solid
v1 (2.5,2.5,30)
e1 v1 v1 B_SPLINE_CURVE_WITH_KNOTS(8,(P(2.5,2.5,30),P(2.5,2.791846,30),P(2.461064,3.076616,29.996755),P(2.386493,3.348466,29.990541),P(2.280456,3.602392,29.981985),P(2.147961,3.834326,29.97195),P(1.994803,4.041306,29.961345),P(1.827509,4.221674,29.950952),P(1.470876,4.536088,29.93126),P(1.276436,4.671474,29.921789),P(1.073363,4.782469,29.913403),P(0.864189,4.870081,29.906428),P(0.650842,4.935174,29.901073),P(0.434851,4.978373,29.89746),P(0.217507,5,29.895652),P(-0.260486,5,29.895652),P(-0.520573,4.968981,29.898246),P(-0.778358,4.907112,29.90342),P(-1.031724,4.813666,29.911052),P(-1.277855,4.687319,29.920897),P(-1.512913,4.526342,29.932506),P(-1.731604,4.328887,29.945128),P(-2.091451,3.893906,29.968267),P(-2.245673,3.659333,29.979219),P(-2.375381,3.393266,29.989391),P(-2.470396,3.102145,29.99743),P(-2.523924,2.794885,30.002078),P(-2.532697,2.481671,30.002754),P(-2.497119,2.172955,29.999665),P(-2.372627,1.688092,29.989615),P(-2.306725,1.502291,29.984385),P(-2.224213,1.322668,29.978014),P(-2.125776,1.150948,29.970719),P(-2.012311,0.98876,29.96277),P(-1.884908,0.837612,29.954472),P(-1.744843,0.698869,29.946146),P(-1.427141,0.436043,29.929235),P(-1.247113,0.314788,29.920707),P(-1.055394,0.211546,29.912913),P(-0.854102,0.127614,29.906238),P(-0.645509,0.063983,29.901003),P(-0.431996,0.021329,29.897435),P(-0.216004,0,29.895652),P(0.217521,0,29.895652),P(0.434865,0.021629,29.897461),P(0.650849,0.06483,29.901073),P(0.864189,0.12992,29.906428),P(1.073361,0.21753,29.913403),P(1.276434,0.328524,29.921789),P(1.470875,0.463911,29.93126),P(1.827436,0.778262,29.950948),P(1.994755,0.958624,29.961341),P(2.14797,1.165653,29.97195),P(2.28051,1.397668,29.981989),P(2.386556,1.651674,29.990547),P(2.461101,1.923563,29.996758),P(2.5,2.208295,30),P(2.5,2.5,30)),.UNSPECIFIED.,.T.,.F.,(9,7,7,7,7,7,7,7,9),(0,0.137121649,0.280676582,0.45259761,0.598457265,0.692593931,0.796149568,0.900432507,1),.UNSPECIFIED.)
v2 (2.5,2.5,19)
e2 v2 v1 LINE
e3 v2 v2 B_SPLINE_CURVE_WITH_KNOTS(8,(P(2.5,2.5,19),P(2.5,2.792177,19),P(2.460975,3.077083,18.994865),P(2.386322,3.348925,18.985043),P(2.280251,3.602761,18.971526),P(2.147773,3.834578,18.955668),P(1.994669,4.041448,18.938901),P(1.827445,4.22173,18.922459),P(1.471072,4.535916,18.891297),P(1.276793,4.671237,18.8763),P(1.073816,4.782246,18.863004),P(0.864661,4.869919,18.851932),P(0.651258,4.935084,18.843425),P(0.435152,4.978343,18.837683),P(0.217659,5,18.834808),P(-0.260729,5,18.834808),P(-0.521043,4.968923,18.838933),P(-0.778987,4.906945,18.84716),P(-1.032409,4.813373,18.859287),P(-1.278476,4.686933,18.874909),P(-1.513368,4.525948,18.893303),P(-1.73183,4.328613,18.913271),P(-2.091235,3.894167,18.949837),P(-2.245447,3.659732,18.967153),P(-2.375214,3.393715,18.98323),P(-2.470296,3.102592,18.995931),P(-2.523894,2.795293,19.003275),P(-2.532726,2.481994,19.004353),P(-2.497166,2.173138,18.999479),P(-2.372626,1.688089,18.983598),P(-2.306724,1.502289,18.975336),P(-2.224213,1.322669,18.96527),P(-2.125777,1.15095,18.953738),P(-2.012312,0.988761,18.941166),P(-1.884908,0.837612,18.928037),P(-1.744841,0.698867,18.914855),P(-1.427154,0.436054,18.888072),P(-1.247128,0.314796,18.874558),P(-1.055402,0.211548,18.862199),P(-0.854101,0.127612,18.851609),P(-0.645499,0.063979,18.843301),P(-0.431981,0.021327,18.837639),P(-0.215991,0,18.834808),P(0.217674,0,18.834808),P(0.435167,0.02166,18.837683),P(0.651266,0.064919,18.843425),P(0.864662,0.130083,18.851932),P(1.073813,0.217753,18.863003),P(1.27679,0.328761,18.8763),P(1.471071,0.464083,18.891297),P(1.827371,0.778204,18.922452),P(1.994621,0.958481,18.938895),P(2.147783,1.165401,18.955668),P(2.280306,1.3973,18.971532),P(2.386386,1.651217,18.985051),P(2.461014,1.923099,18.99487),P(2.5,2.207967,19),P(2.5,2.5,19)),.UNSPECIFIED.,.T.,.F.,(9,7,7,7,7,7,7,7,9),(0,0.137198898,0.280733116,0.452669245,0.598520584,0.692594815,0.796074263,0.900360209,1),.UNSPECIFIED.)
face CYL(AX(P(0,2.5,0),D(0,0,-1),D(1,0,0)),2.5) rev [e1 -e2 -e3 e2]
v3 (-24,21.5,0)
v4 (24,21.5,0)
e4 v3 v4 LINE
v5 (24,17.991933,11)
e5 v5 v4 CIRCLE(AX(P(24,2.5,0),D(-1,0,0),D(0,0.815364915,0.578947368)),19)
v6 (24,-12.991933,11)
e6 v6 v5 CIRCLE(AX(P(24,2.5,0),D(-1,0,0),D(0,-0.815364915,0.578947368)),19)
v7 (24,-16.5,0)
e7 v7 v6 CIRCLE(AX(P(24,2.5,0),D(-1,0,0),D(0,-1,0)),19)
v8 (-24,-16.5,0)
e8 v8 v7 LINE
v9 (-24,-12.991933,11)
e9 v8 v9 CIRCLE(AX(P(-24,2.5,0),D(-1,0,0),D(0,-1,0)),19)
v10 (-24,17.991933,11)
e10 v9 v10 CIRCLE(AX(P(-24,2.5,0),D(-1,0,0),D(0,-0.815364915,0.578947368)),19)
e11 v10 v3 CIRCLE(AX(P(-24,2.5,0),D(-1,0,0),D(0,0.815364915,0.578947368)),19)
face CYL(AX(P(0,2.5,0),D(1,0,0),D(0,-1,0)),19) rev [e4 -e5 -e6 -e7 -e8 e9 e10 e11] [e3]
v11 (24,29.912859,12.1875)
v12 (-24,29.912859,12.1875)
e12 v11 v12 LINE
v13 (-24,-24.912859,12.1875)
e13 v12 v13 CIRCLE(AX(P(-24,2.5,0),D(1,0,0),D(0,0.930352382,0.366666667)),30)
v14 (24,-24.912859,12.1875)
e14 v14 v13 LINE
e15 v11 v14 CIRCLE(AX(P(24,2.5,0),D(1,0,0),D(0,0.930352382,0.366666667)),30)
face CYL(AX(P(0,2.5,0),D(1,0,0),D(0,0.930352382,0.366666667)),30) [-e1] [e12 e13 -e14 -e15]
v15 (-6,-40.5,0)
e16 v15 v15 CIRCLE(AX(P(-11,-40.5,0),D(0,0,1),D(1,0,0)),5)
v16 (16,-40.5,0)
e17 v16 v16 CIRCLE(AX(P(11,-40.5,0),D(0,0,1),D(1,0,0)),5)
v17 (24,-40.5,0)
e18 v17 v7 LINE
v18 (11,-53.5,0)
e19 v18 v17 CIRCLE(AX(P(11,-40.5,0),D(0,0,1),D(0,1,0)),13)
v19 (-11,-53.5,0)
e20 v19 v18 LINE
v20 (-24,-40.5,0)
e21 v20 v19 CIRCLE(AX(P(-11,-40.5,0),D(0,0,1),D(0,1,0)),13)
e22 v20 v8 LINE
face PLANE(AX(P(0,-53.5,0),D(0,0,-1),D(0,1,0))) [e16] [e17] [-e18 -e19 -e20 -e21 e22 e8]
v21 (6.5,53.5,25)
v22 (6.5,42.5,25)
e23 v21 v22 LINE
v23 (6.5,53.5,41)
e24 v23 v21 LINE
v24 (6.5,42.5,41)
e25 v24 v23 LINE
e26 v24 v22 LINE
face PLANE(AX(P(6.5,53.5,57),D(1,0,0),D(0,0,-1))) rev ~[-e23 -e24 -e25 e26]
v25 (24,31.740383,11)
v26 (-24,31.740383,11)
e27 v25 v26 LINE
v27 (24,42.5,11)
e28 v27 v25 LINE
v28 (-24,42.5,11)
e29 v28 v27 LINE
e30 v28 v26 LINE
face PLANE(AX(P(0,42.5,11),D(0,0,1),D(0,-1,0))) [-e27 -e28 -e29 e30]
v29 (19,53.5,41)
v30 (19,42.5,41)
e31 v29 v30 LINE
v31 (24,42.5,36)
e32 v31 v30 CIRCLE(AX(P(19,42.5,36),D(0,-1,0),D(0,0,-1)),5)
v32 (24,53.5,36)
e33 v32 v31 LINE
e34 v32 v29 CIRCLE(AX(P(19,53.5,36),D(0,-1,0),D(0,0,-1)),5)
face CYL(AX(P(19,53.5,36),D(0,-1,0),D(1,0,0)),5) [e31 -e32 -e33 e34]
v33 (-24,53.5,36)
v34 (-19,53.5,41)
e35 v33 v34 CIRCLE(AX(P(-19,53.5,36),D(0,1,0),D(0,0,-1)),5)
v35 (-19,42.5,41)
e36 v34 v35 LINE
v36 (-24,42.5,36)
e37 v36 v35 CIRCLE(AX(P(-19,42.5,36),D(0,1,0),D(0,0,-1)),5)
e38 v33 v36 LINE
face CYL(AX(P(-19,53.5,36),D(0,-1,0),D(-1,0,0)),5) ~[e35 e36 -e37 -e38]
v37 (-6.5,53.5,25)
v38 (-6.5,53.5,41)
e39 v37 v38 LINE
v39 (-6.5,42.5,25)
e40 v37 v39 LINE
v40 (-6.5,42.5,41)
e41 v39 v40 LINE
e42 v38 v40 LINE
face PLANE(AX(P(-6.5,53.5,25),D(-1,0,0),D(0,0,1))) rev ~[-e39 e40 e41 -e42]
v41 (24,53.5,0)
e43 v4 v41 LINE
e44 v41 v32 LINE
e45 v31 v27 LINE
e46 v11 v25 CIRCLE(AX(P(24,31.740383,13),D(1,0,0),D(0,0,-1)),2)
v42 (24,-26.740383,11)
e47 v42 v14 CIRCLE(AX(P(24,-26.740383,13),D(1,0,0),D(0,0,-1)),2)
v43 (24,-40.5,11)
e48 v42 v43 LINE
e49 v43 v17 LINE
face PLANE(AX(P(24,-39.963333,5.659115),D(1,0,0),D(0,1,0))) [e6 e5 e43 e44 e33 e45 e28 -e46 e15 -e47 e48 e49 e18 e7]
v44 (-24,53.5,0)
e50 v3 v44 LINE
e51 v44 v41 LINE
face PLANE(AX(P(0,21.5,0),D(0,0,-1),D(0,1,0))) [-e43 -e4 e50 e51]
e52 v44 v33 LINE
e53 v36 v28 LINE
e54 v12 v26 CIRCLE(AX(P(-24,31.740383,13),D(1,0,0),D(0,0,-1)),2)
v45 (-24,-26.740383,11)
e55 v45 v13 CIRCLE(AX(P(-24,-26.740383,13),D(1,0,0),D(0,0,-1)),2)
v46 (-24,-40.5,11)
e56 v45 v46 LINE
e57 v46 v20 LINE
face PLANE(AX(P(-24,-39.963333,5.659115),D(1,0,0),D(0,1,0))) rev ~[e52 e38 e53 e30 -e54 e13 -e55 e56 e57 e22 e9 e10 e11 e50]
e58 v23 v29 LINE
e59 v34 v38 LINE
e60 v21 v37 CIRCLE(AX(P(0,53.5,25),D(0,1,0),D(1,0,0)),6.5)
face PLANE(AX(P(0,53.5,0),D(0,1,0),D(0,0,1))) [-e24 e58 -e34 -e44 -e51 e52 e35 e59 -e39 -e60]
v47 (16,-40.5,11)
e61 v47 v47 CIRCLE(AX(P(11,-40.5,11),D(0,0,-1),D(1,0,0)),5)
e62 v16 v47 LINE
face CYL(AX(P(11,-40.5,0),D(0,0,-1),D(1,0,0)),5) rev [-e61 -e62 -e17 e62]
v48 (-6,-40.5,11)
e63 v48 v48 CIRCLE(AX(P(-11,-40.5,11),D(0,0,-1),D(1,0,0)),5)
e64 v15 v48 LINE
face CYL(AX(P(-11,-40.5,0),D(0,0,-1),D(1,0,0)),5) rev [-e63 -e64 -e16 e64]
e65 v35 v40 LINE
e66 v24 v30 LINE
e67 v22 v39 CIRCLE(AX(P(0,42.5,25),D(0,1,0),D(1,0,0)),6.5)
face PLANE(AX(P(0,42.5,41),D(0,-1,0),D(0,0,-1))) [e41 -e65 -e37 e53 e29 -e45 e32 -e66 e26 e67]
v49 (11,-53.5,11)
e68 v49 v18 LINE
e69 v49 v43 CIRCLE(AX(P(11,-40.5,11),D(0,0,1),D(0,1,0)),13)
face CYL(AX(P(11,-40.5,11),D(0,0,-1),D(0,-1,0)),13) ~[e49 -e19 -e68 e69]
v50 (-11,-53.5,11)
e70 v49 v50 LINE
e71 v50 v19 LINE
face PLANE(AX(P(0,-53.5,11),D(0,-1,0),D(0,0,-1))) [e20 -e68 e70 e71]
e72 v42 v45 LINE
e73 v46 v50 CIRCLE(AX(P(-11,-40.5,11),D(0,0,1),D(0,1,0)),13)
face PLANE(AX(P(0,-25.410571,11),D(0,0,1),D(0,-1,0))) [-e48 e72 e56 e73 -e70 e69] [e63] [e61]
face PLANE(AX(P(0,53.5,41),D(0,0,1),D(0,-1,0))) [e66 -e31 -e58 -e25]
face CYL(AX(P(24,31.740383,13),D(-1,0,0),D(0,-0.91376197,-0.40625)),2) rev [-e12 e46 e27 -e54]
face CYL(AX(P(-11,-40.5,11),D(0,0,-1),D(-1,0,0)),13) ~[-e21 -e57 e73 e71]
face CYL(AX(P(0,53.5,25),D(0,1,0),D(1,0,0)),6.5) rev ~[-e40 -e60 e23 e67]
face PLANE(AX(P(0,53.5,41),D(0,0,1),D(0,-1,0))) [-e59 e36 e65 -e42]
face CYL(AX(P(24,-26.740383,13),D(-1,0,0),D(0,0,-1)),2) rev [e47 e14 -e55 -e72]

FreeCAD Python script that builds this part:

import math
import FreeCAD as App
import Part
import Sketcher
Q = App.Units.Quantity


def edges_at(feature, points):
    """Names of the edges that pass closest to the given points."""
    edges = feature.Shape.Edges
    near = lambda p: min(range(len(edges)), key=lambda i: edges[i].distToShape(Part.Vertex(*p))[0])
    return sorted({f"Edge{near(p) + 1}" for p in points})

doc = App.newDocument("Part")
body = doc.addObject("PartDesign::Body", "Body")

sketch1 = doc.addObject("Sketcher::SketchObject", "Sketch")
body.addObject(sketch1)
sketch1.AttachmentSupport = (doc.YZ_Plane, [""])
sketch1.MapMode = "FlatFace"
sketch1.addGeometry(Part.LineSegment(App.Vector(-54, 11, 0), App.Vector(-54, 0, 0)), False)
sketch1.addGeometry(Part.LineSegment(App.Vector(-54, 0, 0), App.Vector(-16, 0, 0)), False)
sketch1.addGeometry(Part.ArcOfCircle(Part.Circle(App.Vector(2, 0, 0), App.Vector(0, 0, 1), 19), math.radians(145), math.radians(180)), False)
sketch1.addGeometry(Part.ArcOfCircle(Part.Circle(App.Vector(2, 0, 0), App.Vector(0, 0, 1), 19), math.radians(35), math.radians(145)), False)
sketch1.addGeometry(Part.ArcOfCircle(Part.Circle(App.Vector(2, 0, 0), App.Vector(0, 0, 1), 19), math.radians(0), math.radians(35)), False)
sketch1.addGeometry(Part.LineSegment(App.Vector(22, 0, 0), App.Vector(54, 0, 0)), False)
sketch1.addGeometry(Part.LineSegment(App.Vector(54, 0, 0), App.Vector(54, 41, 0)), False)
sketch1.addGeometry(Part.LineSegment(App.Vector(54, 41, 0), App.Vector(42, 41, 0)), False)
sketch1.addGeometry(Part.LineSegment(App.Vector(42, 41, 0), App.Vector(42, 11, 0)), False)
sketch1.addGeometry(Part.LineSegment(App.Vector(42, 11, 0), App.Vector(30, 11, 0)), False)
sketch1.addGeometry(Part.ArcOfCircle(Part.Circle(App.Vector(2, 0, 0), App.Vector(0, 0, 1), 30), math.radians(22), math.radians(158)), False)
sketch1.addGeometry(Part.LineSegment(App.Vector(-25, 11, 0), App.Vector(-54, 11, 0)), False)
sketch1.addConstraint(Sketcher.Constraint("Coincident", 0, 2, 1, 1))
sketch1.addConstraint(Sketcher.Constraint("Coincident", 1, 2, 2, 2))
sketch1.addConstraint(Sketcher.Constraint("Tangent", 2, 1, 3, 2))
sketch1.addConstraint(Sketcher.Constraint("Tangent", 3, 1, 4, 2))
sketch1.addConstraint(Sketcher.Constraint("Coincident", 4, 1, 5, 1))
sketch1.addConstraint(Sketcher.Constraint("Coincident", 5, 2, 6, 1))
sketch1.addConstraint(Sketcher.Constraint("Coincident", 6, 2, 7, 1))
sketch1.addConstraint(Sketcher.Constraint("Coincident", 7, 2, 8, 1))
sketch1.addConstraint(Sketcher.Constraint("Coincident", 8, 2, 9, 1))
sketch1.addConstraint(Sketcher.Constraint("Coincident", 9, 2, 10, 1))
sketch1.addConstraint(Sketcher.Constraint("Coincident", 10, 2, 11, 1))
sketch1.addConstraint(Sketcher.Constraint("Coincident", 11, 2, 0, 1))
sketch1.addConstraint(Sketcher.Constraint("Vertical", 0))
sketch1.addConstraint(Sketcher.Constraint("Horizontal", 1))
sketch1.addConstraint(Sketcher.Constraint("Horizontal", 5))
sketch1.addConstraint(Sketcher.Constraint("Vertical", 6))
sketch1.addConstraint(Sketcher.Constraint("Horizontal", 7))
sketch1.addConstraint(Sketcher.Constraint("Vertical", 8))
sketch1.addConstraint(Sketcher.Constraint("Horizontal", 9))
sketch1.addConstraint(Sketcher.Constraint("Horizontal", 11))
sketch1.addConstraint(Sketcher.Constraint("Coincident", 4, 3, 2, 3))
sketch1.addConstraint(Sketcher.Constraint("Coincident", 10, 3, 2, 3))
sketch1.addConstraint(Sketcher.Constraint("Symmetric", 0, 2, 5, 2, -1, 1))
sketch1.addConstraint(Sketcher.Constraint("PointOnObject", 2, 3, -1))
sketch1.addConstraint(Sketcher.Constraint("PointOnObject", 0, 2, -1))
sketch1.addConstraint(Sketcher.Constraint("Horizontal", 2, 1, 3, 1))
sketch1.addConstraint(Sketcher.Constraint("Horizontal", 3, 1, 8, 2))
sketch1.addConstraint(Sketcher.Constraint("Horizontal", 9, 2, 10, 2))
sketch1.addConstraint(Sketcher.Constraint("Equal", 7, 0))
sketch1.addConstraint(Sketcher.Constraint("Radius", 2, Q("19 mm")))
sketch1.addConstraint(Sketcher.Constraint("Radius", 10, Q("30 mm")))
sketch1.addConstraint(Sketcher.Constraint("DistanceX", 1, 1, 1, 2, Q("37 mm")))
sketch1.addConstraint(Sketcher.Constraint("DistanceX", 5, 1, 5, 2, Q("32 mm")))
sketch1.addConstraint(Sketcher.Constraint("DistanceX", 7, 2, 7, 1, Q("11 mm")))
sketch1.addConstraint(Sketcher.Constraint("DistanceY", 6, 1, 6, 2, Q("41 mm")))
pad1 = doc.addObject("PartDesign::Pad", "Pad")
body.addObject(pad1)
pad1.Profile = sketch1
pad1.Length = 48
pad1.Midplane = True

sketch2 = doc.addObject("Sketcher::SketchObject", "Sketch001")
body.addObject(sketch2)
sketch2.AttachmentSupport = (doc.XZ_Plane, [""])
sketch2.MapMode = "FlatFace"
sketch2.AttachmentOffset = App.Placement(App.Vector(0, 0, -53.5), App.Rotation())
sketch2.addGeometry(Part.LineSegment(App.Vector(6, 57, 0), App.Vector(6, 25, 0)), False)
sketch2.addGeometry(Part.ArcOfCircle(Part.Circle(App.Vector(0, 25, 0), App.Vector(0, 0, 1), 6), math.radians(180), math.radians(360)), False)
sketch2.addGeometry(Part.LineSegment(App.Vector(-6, 25, 0), App.Vector(-6, 57, 0)), False)
sketch2.addGeometry(Part.LineSegment(App.Vector(-6, 57, 0), App.Vector(6, 57, 0)), False)
sketch2.addConstraint(Sketcher.Constraint("Tangent", 0, 2, 1, 2))
sketch2.addConstraint(Sketcher.Constraint("Tangent", 1, 1, 2, 1))
sketch2.addConstraint(Sketcher.Constraint("Coincident", 2, 2, 3, 1))
sketch2.addConstraint(Sketcher.Constraint("Coincident", 3, 2, 0, 1))
sketch2.addConstraint(Sketcher.Constraint("Vertical", 0))
sketch2.addConstraint(Sketcher.Constraint("Vertical", 2))
sketch2.addConstraint(Sketcher.Constraint("Horizontal", 3))
sketch2.addConstraint(Sketcher.Constraint("PointOnObject", 1, 3, -2))
sketch2.addConstraint(Sketcher.Constraint("Radius", 1, Q("6.5 mm")))
sketch2.addConstraint(Sketcher.Constraint("DistanceY", 0, 2, 0, 1, Q("32 mm")))
sketch2.addConstraint(Sketcher.Constraint("DistanceY", -1, 1, 1, 3, Q("25 mm")))
pocket1 = doc.addObject("PartDesign::Pocket", "Pocket")
body.addObject(pocket1)
pocket1.Profile = sketch2
pocket1.Length = 11
pocket1.Reversed = True

sketch3 = doc.addObject("Sketcher::SketchObject", "Sketch002")
body.addObject(sketch3)
sketch3.AttachmentSupport = (doc.XY_Plane, [""])
sketch3.MapMode = "FlatFace"
sketch3.addGeometry(Part.Circle(App.Vector(-11, -40.5, 0), App.Vector(0, 0, 1), 5), False)
sketch3.addGeometry(Part.Circle(App.Vector(11, -40.5, 0), App.Vector(0, 0, 1), 5), False)
sketch3.addGeometry(Part.Circle(App.Vector(0, 2.5, 0), App.Vector(0, 0, 1), 2.5), False)
sketch3.addConstraint(Sketcher.Constraint("Equal", 0, 1))
sketch3.addConstraint(Sketcher.Constraint("Symmetric", 0, 3, 1, 3, -2))
sketch3.addConstraint(Sketcher.Constraint("PointOnObject", 2, 3, -2))
sketch3.addConstraint(Sketcher.Constraint("Diameter", 0, Q("10 mm")))
sketch3.addConstraint(Sketcher.Constraint("Diameter", 2, Q("5 mm")))
sketch3.addConstraint(Sketcher.Constraint("DistanceX", 0, 3, -1, 1, Q("11 mm")))
sketch3.addConstraint(Sketcher.Constraint("DistanceY", 0, 3, 2, 3, Q("43 mm")))
sketch3.addConstraint(Sketcher.Constraint("DistanceY", 0, 3, -1, 1, Q("40.5 mm")))
pocket2 = doc.addObject("PartDesign::Pocket", "Pocket001")
body.addObject(pocket2)
pocket2.Profile = sketch3
pocket2.Type = "ThroughAll"
pocket2.Reversed = True
doc.recompute()

fillet = doc.addObject("PartDesign::Fillet", "Fillet")
body.addObject(fillet)
fillet.Base = (pocket2, edges_at(pocket2, [(-24, 48, 41), (24, 48, 41)]))
fillet.Radius = 5
doc.recompute()

fillet2 = doc.addObject("PartDesign::Fillet", "Fillet001")
body.addObject(fillet2)
fillet2.Base = (fillet, edges_at(fillet, [(-24, -53.5, 5.5), (24, -53.5, 5.5)]))
fillet2.Radius = 13
doc.recompute()

fillet3 = doc.addObject("PartDesign::Fillet", "Fillet002")
body.addObject(fillet3)
fillet3.Base = (fillet2, edges_at(fillet2, [(0, -25.411, 11), (0, 30.411, 11)]))
fillet3.Radius = 2

doc.recompute()
